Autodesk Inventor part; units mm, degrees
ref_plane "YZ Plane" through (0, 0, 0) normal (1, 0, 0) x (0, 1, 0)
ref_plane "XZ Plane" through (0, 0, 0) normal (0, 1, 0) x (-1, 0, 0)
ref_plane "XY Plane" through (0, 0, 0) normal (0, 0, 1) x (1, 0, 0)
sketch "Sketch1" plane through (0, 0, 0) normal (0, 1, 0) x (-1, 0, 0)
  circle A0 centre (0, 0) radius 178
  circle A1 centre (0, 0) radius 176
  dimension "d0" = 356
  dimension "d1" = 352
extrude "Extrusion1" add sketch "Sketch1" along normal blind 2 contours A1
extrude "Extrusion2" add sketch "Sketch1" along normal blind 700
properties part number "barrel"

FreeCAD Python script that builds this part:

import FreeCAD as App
import Part
import Sketcher

doc = App.newDocument("Part")
body = doc.addObject("PartDesign::Body", "Body")

sketch1 = body.newObject("Sketcher::SketchObject", "Sketch")
sketch1.AttachmentSupport = (doc.getObject("XZ_Plane"), [""])
sketch1.MapMode = "FlatFace"
sketch1.addGeometry(Part.Circle(App.Vector(0, 0, 0), App.Vector(0, 0, 1), 176), False)
sketch1.addConstraint([
    Sketcher.Constraint("Coincident", 0, 3, -1, 1),
    Sketcher.Constraint("Diameter", 0, 352.0),
])
pad1 = body.newObject("PartDesign::Pad", "Pad")
pad1.Profile = sketch1
pad1.Length = 2
pad1.Reversed = True

sketch2 = body.newObject("Sketcher::SketchObject", "Sketch001")
sketch2.AttachmentSupport = (doc.getObject("XZ_Plane"), [""])
sketch2.MapMode = "FlatFace"
sketch2.addGeometry([
    Part.Circle(App.Vector(0, 0, 0), App.Vector(0, 0, 1), 178),
    Part.Circle(App.Vector(0, 0, 0), App.Vector(0, 0, 1), 176),
], False)
sketch2.addConstraint([
    Sketcher.Constraint("Coincident", 0, 3, -1, 1),
    Sketcher.Constraint("Coincident", 1, 3, -1, 1),
    Sketcher.Constraint("Diameter", 0, 356.0),
    Sketcher.Constraint("Diameter", 1, 352.0),
])
pad2 = body.newObject("PartDesign::Pad", "Pad001")
pad2.Profile = sketch2
pad2.Length = 700
pad2.Reversed = True

doc.recompute()
